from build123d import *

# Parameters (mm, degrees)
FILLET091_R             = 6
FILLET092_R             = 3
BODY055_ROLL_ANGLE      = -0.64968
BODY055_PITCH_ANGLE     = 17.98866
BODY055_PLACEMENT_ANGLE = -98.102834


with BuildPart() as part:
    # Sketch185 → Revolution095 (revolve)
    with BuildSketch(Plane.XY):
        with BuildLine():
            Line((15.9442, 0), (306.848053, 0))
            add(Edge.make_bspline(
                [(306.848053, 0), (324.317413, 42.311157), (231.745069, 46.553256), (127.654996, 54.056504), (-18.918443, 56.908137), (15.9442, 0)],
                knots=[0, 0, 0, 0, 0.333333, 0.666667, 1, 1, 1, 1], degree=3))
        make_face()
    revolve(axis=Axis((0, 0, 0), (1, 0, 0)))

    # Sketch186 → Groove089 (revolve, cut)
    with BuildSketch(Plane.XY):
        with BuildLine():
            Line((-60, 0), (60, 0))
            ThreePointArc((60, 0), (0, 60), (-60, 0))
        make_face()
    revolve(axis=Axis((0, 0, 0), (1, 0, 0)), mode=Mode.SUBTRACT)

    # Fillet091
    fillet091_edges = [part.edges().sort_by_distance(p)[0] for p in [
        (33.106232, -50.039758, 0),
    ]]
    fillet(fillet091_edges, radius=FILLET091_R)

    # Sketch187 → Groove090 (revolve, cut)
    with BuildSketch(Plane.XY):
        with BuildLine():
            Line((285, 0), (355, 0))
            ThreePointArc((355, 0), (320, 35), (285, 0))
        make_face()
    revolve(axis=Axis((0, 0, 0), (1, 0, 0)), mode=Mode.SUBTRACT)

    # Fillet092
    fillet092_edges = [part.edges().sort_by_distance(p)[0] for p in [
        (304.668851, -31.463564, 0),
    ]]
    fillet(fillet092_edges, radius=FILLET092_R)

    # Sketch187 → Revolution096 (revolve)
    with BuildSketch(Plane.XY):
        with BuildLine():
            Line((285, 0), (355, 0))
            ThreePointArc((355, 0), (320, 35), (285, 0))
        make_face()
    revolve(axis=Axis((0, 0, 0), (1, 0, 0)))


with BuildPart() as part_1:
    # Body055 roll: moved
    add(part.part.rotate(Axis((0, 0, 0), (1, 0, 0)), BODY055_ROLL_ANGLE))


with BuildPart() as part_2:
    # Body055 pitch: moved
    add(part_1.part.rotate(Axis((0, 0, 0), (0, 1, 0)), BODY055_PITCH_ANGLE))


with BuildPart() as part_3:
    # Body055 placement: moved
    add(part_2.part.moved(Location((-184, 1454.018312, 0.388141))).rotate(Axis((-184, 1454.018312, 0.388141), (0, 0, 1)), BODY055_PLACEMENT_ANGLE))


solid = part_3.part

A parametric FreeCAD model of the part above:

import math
import FreeCAD as App
import Part
import Sketcher
Q = App.Units.Quantity


def edges_at(feature, points):
    """Names of the edges that pass closest to the given points."""
    edges = feature.Shape.Edges
    near = lambda p: min(range(len(edges)), key=lambda i: edges[i].distToShape(Part.Vertex(*p))[0])
    return sorted({f"Edge{near(p) + 1}" for p in points})

doc = App.newDocument("Part")
body = doc.addObject("PartDesign::Body", "Body")

sketch1 = body.newObject("Sketcher::SketchObject", "Sketch")
sketch1.AttachmentSupport = (doc.getObject("XY_Plane"), [""])
sketch1.MapMode = "FlatFace"
sketch1.addGeometry(Part.LineSegment(App.Vector(15.9442, 0, 0), App.Vector(306.848053, 0, 0)), False)
sketch1.addGeometry(Part.BSplineCurve([App.Vector(306.848053, 0, 0), App.Vector(324.317413, 42.311157, 0), App.Vector(231.745069, 46.553256, 0), App.Vector(127.654996, 54.056504, 0), App.Vector(-18.918443, 56.908137, 0), App.Vector(15.9442, 0, 0)], [4, 1, 1, 4], [0, 0.333333, 0.666667, 1], False, 3, [1, 1, 1, 1, 1, 1], False), False)
sketch1.addConstraint(Sketcher.Constraint("Block", 1))
sketch1.addConstraint(Sketcher.Constraint("Coincident", 0, 1, 1, 2))
sketch1.addConstraint(Sketcher.Constraint("Coincident", 1, 1, 0, 2))
revolution = body.newObject("PartDesign::Revolution", "Revolution")
revolution.Profile = sketch1
revolution.ReferenceAxis = (sketch1, ["H_Axis"])
revolution.Angle = 360

sketch2 = body.newObject("Sketcher::SketchObject", "Sketch001")
sketch2.AttachmentSupport = (doc.getObject("XY_Plane"), [""])
sketch2.MapMode = "FlatFace"
sketch2.addGeometry(Part.LineSegment(App.Vector(-60, 0, 0), App.Vector(60, 0, 0)), False)
sketch2.addGeometry(Part.ArcOfCircle(Part.Circle(App.Vector(0, 0, 0), App.Vector(0, 0, 1), 60), math.radians(0), math.radians(180)), False)
sketch2.addConstraint(Sketcher.Constraint("Coincident", 0, 1, 1, 2))
sketch2.addConstraint(Sketcher.Constraint("Coincident", 1, 1, 0, 2))
sketch2.addConstraint(Sketcher.Constraint("Horizontal", 0))
sketch2.addConstraint(Sketcher.Constraint("Coincident", 1, 3, -1, 1))
sketch2.addConstraint(Sketcher.Constraint("PointOnObject", 0, 1, -1))
sketch2.addConstraint(Sketcher.Constraint("Radius", 1, Q("60 mm")))
groove = body.newObject("PartDesign::Groove", "Groove")
groove.Profile = sketch2
groove.ReferenceAxis = (sketch2, ["H_Axis"])
groove.Angle = 360
doc.recompute()

fillet = body.newObject("PartDesign::Fillet", "Fillet")
fillet.Base = (groove, edges_at(groove, [(33.106, -50.04, 0)]))
fillet.Radius = 6

sketch3 = body.newObject("Sketcher::SketchObject", "Sketch002")
sketch3.AttachmentSupport = (doc.getObject("XY_Plane"), [""])
sketch3.MapMode = "FlatFace"
sketch3.addGeometry(Part.LineSegment(App.Vector(285, 0, 0), App.Vector(355, 0, 0)), False)
sketch3.addGeometry(Part.ArcOfCircle(Part.Circle(App.Vector(320, 0, 0), App.Vector(0, 0, 1), 35), math.radians(0), math.radians(180)), False)
sketch3.addConstraint(Sketcher.Constraint("Coincident", 0, 1, 1, 2))
sketch3.addConstraint(Sketcher.Constraint("Coincident", 1, 1, 0, 2))
sketch3.addConstraint(Sketcher.Constraint("Horizontal", 0))
sketch3.addConstraint(Sketcher.Constraint("PointOnObject", 1, 3, -1))
sketch3.addConstraint(Sketcher.Constraint("PointOnObject", 0, 1, -1))
sketch3.addConstraint(Sketcher.Constraint("Radius", 1, Q("35 mm")))
sketch3.addConstraint(Sketcher.Constraint("DistanceX", -1, 1, 1, 3, Q("320 mm")))
groove2 = body.newObject("PartDesign::Groove", "Groove001")
groove2.Profile = sketch3
groove2.ReferenceAxis = (sketch3, ["H_Axis"])
groove2.Angle = 360
doc.recompute()

fillet2 = body.newObject("PartDesign::Fillet", "Fillet001")
fillet2.Base = (groove2, edges_at(groove2, [(304.669, -31.464, 0)]))
fillet2.Radius = 3

sketch4 = body.newObject("Sketcher::SketchObject", "Sketch003")
sketch4.AttachmentSupport = (doc.getObject("XY_Plane"), [""])
sketch4.MapMode = "FlatFace"
sketch4.addGeometry(Part.LineSegment(App.Vector(285, 0, 0), App.Vector(355, 0, 0)), False)
sketch4.addGeometry(Part.ArcOfCircle(Part.Circle(App.Vector(320, 0, 0), App.Vector(0, 0, 1), 35), math.radians(0), math.radians(180)), False)
sketch4.addConstraint(Sketcher.Constraint("Coincident", 0, 1, 1, 2))
sketch4.addConstraint(Sketcher.Constraint("Coincident", 1, 1, 0, 2))
sketch4.addConstraint(Sketcher.Constraint("Horizontal", 0))
sketch4.addConstraint(Sketcher.Constraint("PointOnObject", 1, 3, -1))
sketch4.addConstraint(Sketcher.Constraint("PointOnObject", 0, 1, -1))
sketch4.addConstraint(Sketcher.Constraint("Radius", 1, Q("35 mm")))
sketch4.addConstraint(Sketcher.Constraint("DistanceX", -1, 1, 1, 3, Q("320 mm")))
revolution2 = body.newObject("PartDesign::Revolution", "Revolution001")
revolution2.Profile = sketch4
revolution2.ReferenceAxis = (sketch4, ["H_Axis"])
revolution2.Angle = 360
body2 = doc.addObject("PartDesign::Body", "Body001")
doc.recompute()

body.Placement = App.Placement(App.Vector(0, 0, 0), App.Rotation(App.Vector(1, 0, 0), 359.35032))
boolean = body2.newObject("PartDesign::Boolean", "Boolean")
boolean.Type = "Fuse"
boolean.addObjects([body])
body3 = doc.addObject("PartDesign::Body", "Body002")
doc.recompute()

body2.Placement = App.Placement(App.Vector(0, 0, 0), App.Rotation(App.Vector(0, 1, 0), 17.98866))
boolean2 = body3.newObject("PartDesign::Boolean", "Boolean001")
boolean2.Type = "Fuse"
boolean2.addObjects([body2])
body4 = doc.addObject("PartDesign::Body", "Body003")
doc.recompute()

body3.Placement = App.Placement(App.Vector(-184, 1454.018312, 0.388141), App.Rotation(App.Vector(0, 0, 1), 261.897166))
boolean3 = body4.newObject("PartDesign::Boolean", "Boolean002")
boolean3.Type = "Fuse"
boolean3.addObjects([body3])

doc.recompute()
